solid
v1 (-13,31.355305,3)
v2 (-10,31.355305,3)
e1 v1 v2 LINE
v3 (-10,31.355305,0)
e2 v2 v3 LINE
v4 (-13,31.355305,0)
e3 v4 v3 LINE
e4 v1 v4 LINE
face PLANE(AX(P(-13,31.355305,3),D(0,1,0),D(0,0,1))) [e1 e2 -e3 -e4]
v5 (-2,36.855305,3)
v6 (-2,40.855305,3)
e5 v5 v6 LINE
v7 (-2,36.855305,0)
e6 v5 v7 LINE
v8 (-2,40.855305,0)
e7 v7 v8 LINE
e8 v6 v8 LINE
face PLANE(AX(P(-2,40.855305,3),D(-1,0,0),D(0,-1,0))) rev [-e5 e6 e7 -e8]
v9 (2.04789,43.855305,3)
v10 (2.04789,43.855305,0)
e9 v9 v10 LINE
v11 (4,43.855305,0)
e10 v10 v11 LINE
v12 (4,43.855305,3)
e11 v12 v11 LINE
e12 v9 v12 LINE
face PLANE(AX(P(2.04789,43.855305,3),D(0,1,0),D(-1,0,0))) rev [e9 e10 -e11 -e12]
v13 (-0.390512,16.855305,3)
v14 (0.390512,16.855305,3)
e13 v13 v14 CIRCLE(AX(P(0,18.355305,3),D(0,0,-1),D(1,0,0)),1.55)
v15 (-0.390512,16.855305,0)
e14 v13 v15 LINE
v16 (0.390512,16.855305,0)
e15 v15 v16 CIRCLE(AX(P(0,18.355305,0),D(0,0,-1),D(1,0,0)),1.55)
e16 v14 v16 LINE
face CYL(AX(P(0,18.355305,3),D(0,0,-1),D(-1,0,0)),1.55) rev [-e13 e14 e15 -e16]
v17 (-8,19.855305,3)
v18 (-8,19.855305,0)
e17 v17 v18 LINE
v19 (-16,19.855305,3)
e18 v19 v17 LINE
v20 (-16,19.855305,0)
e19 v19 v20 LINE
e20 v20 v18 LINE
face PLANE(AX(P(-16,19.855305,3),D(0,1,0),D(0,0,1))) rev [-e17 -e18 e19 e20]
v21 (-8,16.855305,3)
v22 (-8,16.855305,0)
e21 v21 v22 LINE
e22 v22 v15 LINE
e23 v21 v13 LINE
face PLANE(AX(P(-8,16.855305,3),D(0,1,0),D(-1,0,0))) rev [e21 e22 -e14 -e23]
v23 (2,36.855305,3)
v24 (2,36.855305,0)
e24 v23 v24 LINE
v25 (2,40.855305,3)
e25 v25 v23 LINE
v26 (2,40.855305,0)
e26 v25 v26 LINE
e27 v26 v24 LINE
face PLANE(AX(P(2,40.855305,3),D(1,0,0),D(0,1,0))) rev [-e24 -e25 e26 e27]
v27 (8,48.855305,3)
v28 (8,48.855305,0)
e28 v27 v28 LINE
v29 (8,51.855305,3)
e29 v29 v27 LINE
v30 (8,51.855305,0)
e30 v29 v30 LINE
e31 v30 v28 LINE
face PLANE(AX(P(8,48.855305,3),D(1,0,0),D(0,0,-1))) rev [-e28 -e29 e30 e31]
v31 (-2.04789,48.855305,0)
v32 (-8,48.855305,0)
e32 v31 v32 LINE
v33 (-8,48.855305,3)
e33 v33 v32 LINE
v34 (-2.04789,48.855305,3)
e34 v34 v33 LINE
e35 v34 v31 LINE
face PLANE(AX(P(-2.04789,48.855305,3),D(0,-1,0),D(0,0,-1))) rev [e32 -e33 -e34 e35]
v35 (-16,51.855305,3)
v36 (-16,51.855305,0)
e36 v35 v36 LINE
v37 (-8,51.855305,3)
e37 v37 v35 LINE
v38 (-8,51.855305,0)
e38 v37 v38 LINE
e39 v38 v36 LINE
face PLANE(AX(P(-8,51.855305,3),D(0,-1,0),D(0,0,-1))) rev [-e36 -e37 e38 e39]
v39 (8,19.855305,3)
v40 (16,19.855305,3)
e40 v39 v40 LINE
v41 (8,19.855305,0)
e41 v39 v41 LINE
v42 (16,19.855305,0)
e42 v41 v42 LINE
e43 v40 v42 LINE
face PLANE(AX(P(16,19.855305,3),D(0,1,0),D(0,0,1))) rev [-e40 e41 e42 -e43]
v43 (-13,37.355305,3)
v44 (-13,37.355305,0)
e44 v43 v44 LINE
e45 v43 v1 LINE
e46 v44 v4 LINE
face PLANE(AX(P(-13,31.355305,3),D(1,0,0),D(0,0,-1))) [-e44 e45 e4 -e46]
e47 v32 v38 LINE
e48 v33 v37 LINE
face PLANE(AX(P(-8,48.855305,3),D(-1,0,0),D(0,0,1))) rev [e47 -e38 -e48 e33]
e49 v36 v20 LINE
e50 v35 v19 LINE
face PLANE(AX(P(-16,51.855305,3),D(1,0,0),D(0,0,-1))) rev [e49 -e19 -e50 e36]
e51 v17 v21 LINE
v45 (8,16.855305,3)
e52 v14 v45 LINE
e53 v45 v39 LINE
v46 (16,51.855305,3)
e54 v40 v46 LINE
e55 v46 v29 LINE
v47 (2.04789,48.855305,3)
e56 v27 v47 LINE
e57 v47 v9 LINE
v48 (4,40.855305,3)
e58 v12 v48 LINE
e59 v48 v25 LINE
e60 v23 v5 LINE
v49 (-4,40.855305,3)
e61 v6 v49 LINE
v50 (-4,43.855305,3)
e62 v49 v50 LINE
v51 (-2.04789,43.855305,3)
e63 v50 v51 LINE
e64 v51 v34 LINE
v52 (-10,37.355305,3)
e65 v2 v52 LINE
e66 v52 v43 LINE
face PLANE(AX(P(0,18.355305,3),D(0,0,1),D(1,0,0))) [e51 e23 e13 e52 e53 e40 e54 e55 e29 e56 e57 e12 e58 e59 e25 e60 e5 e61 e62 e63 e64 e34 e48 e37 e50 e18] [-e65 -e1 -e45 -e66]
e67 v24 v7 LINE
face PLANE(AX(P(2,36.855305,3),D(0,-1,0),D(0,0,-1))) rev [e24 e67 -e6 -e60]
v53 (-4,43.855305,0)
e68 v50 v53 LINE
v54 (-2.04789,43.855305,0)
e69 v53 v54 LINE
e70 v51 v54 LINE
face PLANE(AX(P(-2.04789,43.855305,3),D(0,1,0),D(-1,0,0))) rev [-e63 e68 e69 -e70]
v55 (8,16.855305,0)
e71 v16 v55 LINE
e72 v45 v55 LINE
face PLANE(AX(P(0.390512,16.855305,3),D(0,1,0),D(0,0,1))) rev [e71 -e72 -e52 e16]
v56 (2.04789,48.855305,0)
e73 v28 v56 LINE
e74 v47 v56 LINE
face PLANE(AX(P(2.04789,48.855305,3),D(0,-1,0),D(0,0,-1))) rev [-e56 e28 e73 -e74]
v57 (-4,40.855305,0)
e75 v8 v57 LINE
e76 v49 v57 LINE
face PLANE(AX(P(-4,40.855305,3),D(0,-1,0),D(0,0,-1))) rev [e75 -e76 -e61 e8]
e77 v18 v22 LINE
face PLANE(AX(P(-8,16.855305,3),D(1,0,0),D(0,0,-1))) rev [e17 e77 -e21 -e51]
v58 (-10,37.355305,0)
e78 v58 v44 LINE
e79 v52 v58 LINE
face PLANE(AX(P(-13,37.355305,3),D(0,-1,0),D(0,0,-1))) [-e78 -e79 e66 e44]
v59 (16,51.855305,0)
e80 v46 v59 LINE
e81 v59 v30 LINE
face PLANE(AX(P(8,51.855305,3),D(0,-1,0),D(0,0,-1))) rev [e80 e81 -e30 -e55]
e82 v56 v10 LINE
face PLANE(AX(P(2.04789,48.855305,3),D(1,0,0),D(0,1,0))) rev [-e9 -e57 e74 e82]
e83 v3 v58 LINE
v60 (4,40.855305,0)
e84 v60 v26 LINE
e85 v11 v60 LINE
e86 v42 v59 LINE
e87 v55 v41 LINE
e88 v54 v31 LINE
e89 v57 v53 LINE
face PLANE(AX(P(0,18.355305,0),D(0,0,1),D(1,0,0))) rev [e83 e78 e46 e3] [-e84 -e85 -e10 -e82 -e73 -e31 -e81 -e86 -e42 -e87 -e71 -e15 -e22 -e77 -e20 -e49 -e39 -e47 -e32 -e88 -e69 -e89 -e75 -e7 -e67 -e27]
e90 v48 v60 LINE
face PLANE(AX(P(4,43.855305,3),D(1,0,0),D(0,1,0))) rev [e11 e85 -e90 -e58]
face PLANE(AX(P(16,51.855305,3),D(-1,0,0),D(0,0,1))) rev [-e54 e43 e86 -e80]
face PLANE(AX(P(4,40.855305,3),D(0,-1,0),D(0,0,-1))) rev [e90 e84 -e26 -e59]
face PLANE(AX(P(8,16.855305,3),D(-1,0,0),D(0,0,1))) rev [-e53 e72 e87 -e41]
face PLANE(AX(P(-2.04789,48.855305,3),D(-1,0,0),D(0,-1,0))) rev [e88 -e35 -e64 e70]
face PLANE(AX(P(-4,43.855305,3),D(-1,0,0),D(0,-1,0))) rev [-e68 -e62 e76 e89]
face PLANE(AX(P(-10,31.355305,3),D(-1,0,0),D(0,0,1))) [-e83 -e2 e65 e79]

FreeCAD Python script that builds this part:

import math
import FreeCAD as App
import Part
import Sketcher

V = App.Vector
Q = App.Units.Quantity


def add_polygon(sketch, points):
    """Adds a closed chain of lines whose ends are joined by coincident constraints."""
    first, n = sketch.GeometryCount, len(points)
    for a, b in zip(points, points[1:] + points[:1]):
        sketch.addGeometry(Part.LineSegment(App.Vector(*a, 0), App.Vector(*b, 0)), False)
    for i in range(n):
        sketch.addConstraint(Sketcher.Constraint("Coincident", first + i, 2, first + (i + 1) % n, 1))

doc = App.newDocument("Part")
body = doc.addObject("PartDesign::Body", "Body")

sketch1 = body.newObject("Sketcher::SketchObject", "Sketch")
sketch1.AttachmentSupport = (doc.getObject("XY_Plane"), [""])
sketch1.MapMode = "FlatFace"
sketch1.addGeometry(Part.LineSegment(V(8, 48.855305, 0), V(2.04789, 48.855305, 0)), False)
sketch1.addGeometry(Part.LineSegment(V(2.04789, 48.855305, 0), V(2.04789, 43.855305, 0)), False)
sketch1.addGeometry(Part.LineSegment(V(2.04789, 43.855305, 0), V(4, 43.855305, 0)), False)
sketch1.addGeometry(Part.LineSegment(V(4, 43.855305, 0), V(4, 40.855305, 0)), False)
sketch1.addGeometry(Part.LineSegment(V(4, 40.855305, 0), V(2, 40.855305, 0)), False)
sketch1.addGeometry(Part.LineSegment(V(2, 40.855305, 0), V(2, 36.855305, 0)), False)
sketch1.addGeometry(Part.LineSegment(V(2, 36.855305, 0), V(-2, 36.855305, 0)), False)
sketch1.addGeometry(Part.LineSegment(V(-2, 36.855305, 0), V(-2, 40.855305, 0)), False)
sketch1.addGeometry(Part.LineSegment(V(-2, 40.855305, 0), V(-4, 40.855305, 0)), False)
sketch1.addGeometry(Part.LineSegment(V(-4, 40.855305, 0), V(-4, 43.855305, 0)), False)
sketch1.addGeometry(Part.LineSegment(V(-4, 43.855305, 0), V(-2.04789, 43.855305, 0)), False)
sketch1.addGeometry(Part.LineSegment(V(-2.04789, 43.855305, 0), V(-2.04789, 48.855305, 0)), False)
sketch1.addGeometry(Part.LineSegment(V(-2.04789, 48.855305, 0), V(-8, 48.855305, 0)), False)
sketch1.addGeometry(Part.LineSegment(V(-8, 48.855305, 0), V(-8, 51.855305, 0)), False)
sketch1.addGeometry(Part.LineSegment(V(-8, 51.855305, 0), V(-16, 51.855305, 0)), False)
sketch1.addGeometry(Part.LineSegment(V(-16, 51.855305, 0), V(-16, 19.855305, 0)), False)
sketch1.addGeometry(Part.LineSegment(V(-16, 19.855305, 0), V(-8, 19.855305, 0)), False)
sketch1.addGeometry(Part.LineSegment(V(-8, 19.855305, 0), V(-8, 16.855305, 0)), False)
sketch1.addGeometry(Part.LineSegment(V(-8, 16.855305, 0), V(-0.390512, 16.855305, 0)), False)
sketch1.addGeometry(Part.ArcOfCircle(Part.Circle(V(0, 18.355305, 0), V(0, 0, 1), 1.55), math.radians(-75.407449), math.radians(255.407449)), False)
sketch1.addGeometry(Part.LineSegment(V(0.390512, 16.855305, 0), V(8, 16.855305, 0)), False)
sketch1.addGeometry(Part.LineSegment(V(8, 16.855305, 0), V(8, 19.855305, 0)), False)
sketch1.addGeometry(Part.LineSegment(V(8, 19.855305, 0), V(16, 19.855305, 0)), False)
sketch1.addGeometry(Part.LineSegment(V(16, 19.855305, 0), V(16, 51.855305, 0)), False)
sketch1.addGeometry(Part.LineSegment(V(16, 51.855305, 0), V(8, 51.855305, 0)), False)
sketch1.addGeometry(Part.LineSegment(V(8, 51.855305, 0), V(8, 48.855305, 0)), False)
add_polygon(sketch1, [(-13, 31.355305), (-13, 37.355305), (-10, 37.355305), (-10, 31.355305)])
sketch1.addConstraint([
    Sketcher.Constraint("Coincident", 0, 2, 1, 1),
    Sketcher.Constraint("Coincident", 1, 2, 2, 1),
    Sketcher.Constraint("Coincident", 2, 2, 3, 1),
    Sketcher.Constraint("Coincident", 3, 2, 4, 1),
    Sketcher.Constraint("Coincident", 4, 2, 5, 1),
    Sketcher.Constraint("Coincident", 5, 2, 6, 1),
    Sketcher.Constraint("Coincident", 6, 2, 7, 1),
    Sketcher.Constraint("Coincident", 7, 2, 8, 1),
    Sketcher.Constraint("Coincident", 8, 2, 9, 1),
    Sketcher.Constraint("Coincident", 9, 2, 10, 1),
    Sketcher.Constraint("Coincident", 10, 2, 11, 1),
    Sketcher.Constraint("Coincident", 11, 2, 12, 1),
    Sketcher.Constraint("Coincident", 12, 2, 13, 1),
    Sketcher.Constraint("Coincident", 13, 2, 14, 1),
    Sketcher.Constraint("Coincident", 14, 2, 15, 1),
    Sketcher.Constraint("Coincident", 15, 2, 16, 1),
    Sketcher.Constraint("Coincident", 16, 2, 17, 1),
    Sketcher.Constraint("Coincident", 17, 2, 18, 1),
    Sketcher.Constraint("Coincident", 18, 2, 19, 2),
    Sketcher.Constraint("Coincident", 19, 1, 20, 1),
    Sketcher.Constraint("Coincident", 20, 2, 21, 1),
    Sketcher.Constraint("Coincident", 21, 2, 22, 1),
    Sketcher.Constraint("Coincident", 22, 2, 23, 1),
    Sketcher.Constraint("Coincident", 23, 2, 24, 1),
    Sketcher.Constraint("Coincident", 24, 2, 25, 1),
    Sketcher.Constraint("Coincident", 25, 2, 0, 1),
    Sketcher.Constraint("Horizontal", 0),
    Sketcher.Constraint("Vertical", 1),
    Sketcher.Constraint("Horizontal", 2),
    Sketcher.Constraint("Vertical", 3),
    Sketcher.Constraint("Horizontal", 4),
    Sketcher.Constraint("Vertical", 5),
    Sketcher.Constraint("Horizontal", 6),
    Sketcher.Constraint("Vertical", 7),
    Sketcher.Constraint("Horizontal", 8),
    Sketcher.Constraint("Vertical", 9),
    Sketcher.Constraint("Horizontal", 10),
    Sketcher.Constraint("Vertical", 11),
    Sketcher.Constraint("Horizontal", 12),
    Sketcher.Constraint("Vertical", 13),
    Sketcher.Constraint("Horizontal", 14),
    Sketcher.Constraint("Vertical", 15),
    Sketcher.Constraint("Horizontal", 16),
    Sketcher.Constraint("Vertical", 17),
    Sketcher.Constraint("Horizontal", 18),
    Sketcher.Constraint("Horizontal", 20),
    Sketcher.Constraint("Vertical", 21),
    Sketcher.Constraint("Horizontal", 22),
    Sketcher.Constraint("Vertical", 23),
    Sketcher.Constraint("Horizontal", 24),
    Sketcher.Constraint("Vertical", 25),
    Sketcher.Constraint("Vertical", 26),
    Sketcher.Constraint("Horizontal", 27),
    Sketcher.Constraint("Vertical", 28),
    Sketcher.Constraint("Horizontal", 29),
    Sketcher.Constraint("Symmetric", 4, 2, 7, 2, -2),
    Sketcher.Constraint("Symmetric", 2, 2, 9, 2, -2),
    Sketcher.Constraint("Symmetric", 0, 2, 11, 2, -2),
    Sketcher.Constraint("Symmetric", 18, 2, 19, 1, -2),
    Sketcher.Constraint("Symmetric", 16, 2, 21, 2, -2),
    Sketcher.Constraint("Symmetric", 14, 2, 23, 2, -2),
    Sketcher.Constraint("Vertical", 13, 2, 16, 2),
    Sketcher.Constraint("Vertical", 21, 2, 24, 2),
    Sketcher.Constraint("Equal", 29, 3),
    Sketcher.Constraint("Equal", 6, 5),
    Sketcher.Constraint("Equal", 9, 13),
    Sketcher.Constraint("Equal", 13, 17),
    Sketcher.Constraint("DistanceX", 4, 2, 4, 1, Q("2 mm")),
    Sketcher.Constraint("DistanceX", 6, 2, 6, 1, Q("4 mm")),
    Sketcher.Constraint("DistanceX", 14, 2, 14, 1, Q("8 mm")),
    Sketcher.Constraint("DistanceX", 27, 1, 27, 2, Q("3 mm")),
    Sketcher.Constraint("DistanceY", 1, 2, 1, 1, Q("5 mm")),
    Sketcher.Constraint("DistanceY", 15, 2, 15, 1, Q("32 mm")),
    Sketcher.Constraint("DistanceY", 26, 1, 26, 2, Q("6 mm")),
    Sketcher.Constraint("Radius", 19, Q("1.55 mm")),
    Sketcher.Constraint("DistanceX", 12, 2, -1, 1, Q("8 mm")),
    Sketcher.Constraint("DistanceX", 26, 2, -1, 1, Q("13 mm")),
    Sketcher.Constraint("DistanceY", 19, 3, 0, 2, Q("30.5 mm")),
    Sketcher.Constraint("DistanceY", 26, 2, 8, 2, Q("3.5 mm")),
    Sketcher.Constraint("DistanceX", 0, 2, 0, 1, Q("5.95211 mm")),
    Sketcher.Constraint("DistanceY", -1, 1, 19, 3, Q("18.355305 mm")),
])
pad1 = body.newObject("PartDesign::Pad", "Pad")
pad1.Profile = sketch1
pad1.Length = 3

doc.recompute()
